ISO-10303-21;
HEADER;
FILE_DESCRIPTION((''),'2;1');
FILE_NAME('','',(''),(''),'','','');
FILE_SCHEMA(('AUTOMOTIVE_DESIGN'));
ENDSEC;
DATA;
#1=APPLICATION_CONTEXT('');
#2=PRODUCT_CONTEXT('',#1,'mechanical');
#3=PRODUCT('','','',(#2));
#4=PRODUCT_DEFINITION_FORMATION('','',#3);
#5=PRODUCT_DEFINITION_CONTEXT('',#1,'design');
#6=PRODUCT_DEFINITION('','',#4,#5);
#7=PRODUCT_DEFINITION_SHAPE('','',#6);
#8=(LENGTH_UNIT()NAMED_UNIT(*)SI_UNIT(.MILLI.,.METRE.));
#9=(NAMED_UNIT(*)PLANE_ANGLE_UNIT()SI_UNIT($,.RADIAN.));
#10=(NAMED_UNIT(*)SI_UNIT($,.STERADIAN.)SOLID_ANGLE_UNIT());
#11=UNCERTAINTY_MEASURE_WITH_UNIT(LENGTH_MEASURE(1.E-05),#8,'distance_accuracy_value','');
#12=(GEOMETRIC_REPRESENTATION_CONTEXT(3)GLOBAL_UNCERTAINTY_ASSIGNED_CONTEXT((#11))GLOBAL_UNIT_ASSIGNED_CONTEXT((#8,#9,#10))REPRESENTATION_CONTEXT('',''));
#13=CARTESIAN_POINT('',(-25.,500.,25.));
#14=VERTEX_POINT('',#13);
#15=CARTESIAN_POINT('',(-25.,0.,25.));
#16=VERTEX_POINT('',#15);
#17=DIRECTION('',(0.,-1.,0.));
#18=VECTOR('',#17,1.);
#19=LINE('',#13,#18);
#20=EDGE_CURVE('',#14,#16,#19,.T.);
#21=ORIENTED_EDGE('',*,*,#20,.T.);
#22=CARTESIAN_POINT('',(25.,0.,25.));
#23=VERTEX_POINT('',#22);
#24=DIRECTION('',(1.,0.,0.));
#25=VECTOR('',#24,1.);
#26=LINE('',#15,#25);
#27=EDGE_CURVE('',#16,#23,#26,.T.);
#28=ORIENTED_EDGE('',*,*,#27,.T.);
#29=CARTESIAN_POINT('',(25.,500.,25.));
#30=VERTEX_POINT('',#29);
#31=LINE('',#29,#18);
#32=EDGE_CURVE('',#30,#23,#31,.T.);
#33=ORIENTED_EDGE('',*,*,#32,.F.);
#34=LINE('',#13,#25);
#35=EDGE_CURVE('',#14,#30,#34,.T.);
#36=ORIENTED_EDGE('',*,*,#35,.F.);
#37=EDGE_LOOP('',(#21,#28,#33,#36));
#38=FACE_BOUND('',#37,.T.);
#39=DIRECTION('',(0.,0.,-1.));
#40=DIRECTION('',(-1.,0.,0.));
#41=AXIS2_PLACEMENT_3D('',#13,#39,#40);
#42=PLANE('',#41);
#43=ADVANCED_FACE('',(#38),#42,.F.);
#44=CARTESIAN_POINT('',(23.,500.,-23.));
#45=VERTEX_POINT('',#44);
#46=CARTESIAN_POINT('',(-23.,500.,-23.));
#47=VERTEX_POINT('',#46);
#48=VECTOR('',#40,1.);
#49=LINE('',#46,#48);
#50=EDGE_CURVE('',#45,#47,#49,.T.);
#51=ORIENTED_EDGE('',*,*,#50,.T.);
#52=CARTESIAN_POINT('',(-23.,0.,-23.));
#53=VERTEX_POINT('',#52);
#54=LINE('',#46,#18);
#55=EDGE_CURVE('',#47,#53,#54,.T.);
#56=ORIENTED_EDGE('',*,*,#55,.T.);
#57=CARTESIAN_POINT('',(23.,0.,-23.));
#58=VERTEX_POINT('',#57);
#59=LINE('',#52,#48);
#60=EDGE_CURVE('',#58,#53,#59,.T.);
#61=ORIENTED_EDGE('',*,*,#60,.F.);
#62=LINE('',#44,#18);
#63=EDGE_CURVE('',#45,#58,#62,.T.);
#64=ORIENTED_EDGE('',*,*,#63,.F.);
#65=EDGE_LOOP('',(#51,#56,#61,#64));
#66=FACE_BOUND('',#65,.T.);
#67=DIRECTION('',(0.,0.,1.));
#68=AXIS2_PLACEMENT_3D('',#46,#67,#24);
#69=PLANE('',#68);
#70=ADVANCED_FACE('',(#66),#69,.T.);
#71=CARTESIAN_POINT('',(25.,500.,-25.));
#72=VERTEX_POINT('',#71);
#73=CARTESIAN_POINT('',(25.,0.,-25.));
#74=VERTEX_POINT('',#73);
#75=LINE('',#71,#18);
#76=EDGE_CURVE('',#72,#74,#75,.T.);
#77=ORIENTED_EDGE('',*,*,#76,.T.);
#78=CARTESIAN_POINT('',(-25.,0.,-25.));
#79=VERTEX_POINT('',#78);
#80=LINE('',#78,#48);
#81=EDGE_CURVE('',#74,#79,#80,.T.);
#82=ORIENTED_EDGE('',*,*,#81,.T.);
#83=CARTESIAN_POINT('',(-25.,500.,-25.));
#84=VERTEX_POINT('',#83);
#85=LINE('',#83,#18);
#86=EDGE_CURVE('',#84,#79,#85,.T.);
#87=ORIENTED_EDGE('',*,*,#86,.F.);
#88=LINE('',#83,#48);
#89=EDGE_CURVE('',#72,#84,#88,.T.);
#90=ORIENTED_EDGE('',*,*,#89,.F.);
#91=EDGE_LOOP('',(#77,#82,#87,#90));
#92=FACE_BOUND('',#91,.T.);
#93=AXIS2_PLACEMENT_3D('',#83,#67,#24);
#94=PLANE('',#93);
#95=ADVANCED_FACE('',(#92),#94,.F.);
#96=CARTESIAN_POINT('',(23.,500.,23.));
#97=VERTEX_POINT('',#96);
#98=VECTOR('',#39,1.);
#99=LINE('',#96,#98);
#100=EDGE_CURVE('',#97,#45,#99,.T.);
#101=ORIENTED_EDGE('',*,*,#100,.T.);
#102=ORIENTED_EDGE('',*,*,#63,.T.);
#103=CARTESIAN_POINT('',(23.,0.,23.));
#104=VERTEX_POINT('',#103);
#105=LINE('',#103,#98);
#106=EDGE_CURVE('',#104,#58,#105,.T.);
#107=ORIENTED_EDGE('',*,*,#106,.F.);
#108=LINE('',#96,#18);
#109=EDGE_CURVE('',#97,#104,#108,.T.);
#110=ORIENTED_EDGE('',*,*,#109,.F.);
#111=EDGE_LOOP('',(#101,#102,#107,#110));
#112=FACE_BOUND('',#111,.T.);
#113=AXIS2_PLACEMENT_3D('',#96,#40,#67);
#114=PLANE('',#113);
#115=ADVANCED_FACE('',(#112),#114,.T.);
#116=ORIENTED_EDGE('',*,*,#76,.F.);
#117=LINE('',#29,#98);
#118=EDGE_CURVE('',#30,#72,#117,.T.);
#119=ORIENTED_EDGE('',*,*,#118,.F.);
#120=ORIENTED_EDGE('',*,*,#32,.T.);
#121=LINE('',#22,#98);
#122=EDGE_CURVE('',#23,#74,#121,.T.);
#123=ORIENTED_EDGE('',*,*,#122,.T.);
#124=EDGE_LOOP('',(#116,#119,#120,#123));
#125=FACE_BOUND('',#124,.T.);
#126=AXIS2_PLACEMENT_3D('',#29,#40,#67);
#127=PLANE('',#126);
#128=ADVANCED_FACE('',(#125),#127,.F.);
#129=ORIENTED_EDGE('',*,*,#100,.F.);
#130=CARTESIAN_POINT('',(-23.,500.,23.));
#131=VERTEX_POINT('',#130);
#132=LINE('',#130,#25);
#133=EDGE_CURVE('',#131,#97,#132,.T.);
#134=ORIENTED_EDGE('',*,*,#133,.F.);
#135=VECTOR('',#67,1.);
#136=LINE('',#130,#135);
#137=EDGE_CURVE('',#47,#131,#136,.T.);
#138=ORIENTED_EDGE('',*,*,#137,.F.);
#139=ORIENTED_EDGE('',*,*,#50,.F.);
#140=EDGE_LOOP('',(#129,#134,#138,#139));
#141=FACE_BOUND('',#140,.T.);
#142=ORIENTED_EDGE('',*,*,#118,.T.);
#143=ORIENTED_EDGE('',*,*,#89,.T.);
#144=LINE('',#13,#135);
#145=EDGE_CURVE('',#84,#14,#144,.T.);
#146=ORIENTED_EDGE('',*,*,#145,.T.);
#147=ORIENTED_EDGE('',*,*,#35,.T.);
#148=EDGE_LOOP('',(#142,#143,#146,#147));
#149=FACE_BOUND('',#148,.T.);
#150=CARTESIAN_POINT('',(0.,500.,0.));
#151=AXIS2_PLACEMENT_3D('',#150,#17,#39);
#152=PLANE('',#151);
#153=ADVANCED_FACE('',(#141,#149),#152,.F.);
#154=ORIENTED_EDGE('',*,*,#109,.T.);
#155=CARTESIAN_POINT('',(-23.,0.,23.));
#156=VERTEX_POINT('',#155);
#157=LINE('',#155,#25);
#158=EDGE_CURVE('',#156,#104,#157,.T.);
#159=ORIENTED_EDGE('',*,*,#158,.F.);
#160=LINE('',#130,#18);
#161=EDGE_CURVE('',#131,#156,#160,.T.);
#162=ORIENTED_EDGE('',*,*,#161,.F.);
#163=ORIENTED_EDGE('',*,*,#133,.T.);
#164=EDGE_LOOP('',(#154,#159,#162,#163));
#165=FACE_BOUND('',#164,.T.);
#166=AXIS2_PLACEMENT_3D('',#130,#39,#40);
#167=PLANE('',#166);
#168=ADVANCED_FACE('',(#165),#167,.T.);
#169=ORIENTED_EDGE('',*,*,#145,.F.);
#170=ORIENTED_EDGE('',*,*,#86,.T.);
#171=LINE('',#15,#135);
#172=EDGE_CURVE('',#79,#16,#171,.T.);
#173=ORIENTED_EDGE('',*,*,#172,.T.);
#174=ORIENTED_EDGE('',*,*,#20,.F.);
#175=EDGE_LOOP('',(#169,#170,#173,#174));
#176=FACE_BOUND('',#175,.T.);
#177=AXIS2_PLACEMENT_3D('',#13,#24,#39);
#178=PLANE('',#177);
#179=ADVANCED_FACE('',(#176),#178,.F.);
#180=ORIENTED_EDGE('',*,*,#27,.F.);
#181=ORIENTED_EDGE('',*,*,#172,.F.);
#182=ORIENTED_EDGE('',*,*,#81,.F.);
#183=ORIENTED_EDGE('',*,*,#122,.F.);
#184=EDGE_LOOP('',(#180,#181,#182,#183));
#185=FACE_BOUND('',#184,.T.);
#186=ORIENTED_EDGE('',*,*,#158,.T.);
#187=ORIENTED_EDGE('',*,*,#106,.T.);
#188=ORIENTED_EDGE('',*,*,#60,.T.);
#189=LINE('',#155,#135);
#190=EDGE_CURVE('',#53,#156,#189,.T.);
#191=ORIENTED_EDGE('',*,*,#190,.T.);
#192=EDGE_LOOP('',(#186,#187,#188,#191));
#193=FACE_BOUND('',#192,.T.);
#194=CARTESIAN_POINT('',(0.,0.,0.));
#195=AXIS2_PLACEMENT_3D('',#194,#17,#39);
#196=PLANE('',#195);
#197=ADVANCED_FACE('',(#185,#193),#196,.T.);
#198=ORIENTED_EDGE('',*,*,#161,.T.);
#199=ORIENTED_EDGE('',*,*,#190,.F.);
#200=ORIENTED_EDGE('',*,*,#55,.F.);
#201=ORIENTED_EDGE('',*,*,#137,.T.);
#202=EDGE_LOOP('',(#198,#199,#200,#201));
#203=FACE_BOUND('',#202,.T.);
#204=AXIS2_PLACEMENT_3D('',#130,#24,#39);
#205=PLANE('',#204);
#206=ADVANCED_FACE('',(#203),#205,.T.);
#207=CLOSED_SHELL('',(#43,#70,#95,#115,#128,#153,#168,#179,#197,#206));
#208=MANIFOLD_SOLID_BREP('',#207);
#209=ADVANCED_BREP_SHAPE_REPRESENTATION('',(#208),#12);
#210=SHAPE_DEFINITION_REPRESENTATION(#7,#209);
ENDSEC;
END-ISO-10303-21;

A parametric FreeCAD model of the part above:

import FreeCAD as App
import Part
import Sketcher

V = App.Vector
Q = App.Units.Quantity

doc = App.newDocument("Part")
body = doc.addObject("PartDesign::Body", "Body")

sketch1 = body.newObject("Sketcher::SketchObject", "Sketch")
sketch1.AttachmentSupport = (doc.getObject("XZ_Plane"), [""])
sketch1.MapMode = "FlatFace"
sketch1.addGeometry([
    Part.LineSegment(V(-25, -25, 0), V(-25, 25, 0)),
    Part.LineSegment(V(-25, 25, 0), V(25, 25, 0)),
    Part.LineSegment(V(25, 25, 0), V(25, -25, 0)),
    Part.LineSegment(V(25, -25, 0), V(-25, -25, 0)),
    Part.LineSegment(V(23, 23, 0), V(-23, 23, 0)),
    Part.LineSegment(V(-23, 23, 0), V(-23, -23, 0)),
    Part.LineSegment(V(-23, -23, 0), V(23, -23, 0)),
    Part.LineSegment(V(23, -23, 0), V(23, 23, 0)),
], False)
sketch1.addConstraint([
    Sketcher.Constraint("Coincident", 0, 2, 1, 1),
    Sketcher.Constraint("Coincident", 1, 2, 2, 1),
    Sketcher.Constraint("Coincident", 2, 2, 3, 1),
    Sketcher.Constraint("Coincident", 3, 2, 0, 1),
    Sketcher.Constraint("Coincident", 4, 2, 5, 1),
    Sketcher.Constraint("Coincident", 5, 2, 6, 1),
    Sketcher.Constraint("Coincident", 6, 2, 7, 1),
    Sketcher.Constraint("Coincident", 7, 2, 4, 1),
    Sketcher.Constraint("Vertical", 0),
    Sketcher.Constraint("Horizontal", 1),
    Sketcher.Constraint("Vertical", 2),
    Sketcher.Constraint("Horizontal", 3),
    Sketcher.Constraint("Horizontal", 4),
    Sketcher.Constraint("Vertical", 5),
    Sketcher.Constraint("Horizontal", 6),
    Sketcher.Constraint("Vertical", 7),
    Sketcher.Constraint("Symmetric", 0, 2, 2, 2, -1, 1),
    Sketcher.Constraint("Symmetric", 4, 2, 6, 2, -1, 1),
    Sketcher.Constraint("Equal", 3, 0),
    Sketcher.Constraint("Equal", 6, 5),
    Sketcher.Constraint("DistanceX", 1, 1, 1, 2, Q("50 mm")),
    Sketcher.Constraint("DistanceX", 4, 2, 4, 1, Q("46 mm")),
])
pad1 = body.newObject("PartDesign::Pad", "Pad")
pad1.Profile = sketch1
pad1.Length = 500
pad1.Reversed = True

doc.recompute()
